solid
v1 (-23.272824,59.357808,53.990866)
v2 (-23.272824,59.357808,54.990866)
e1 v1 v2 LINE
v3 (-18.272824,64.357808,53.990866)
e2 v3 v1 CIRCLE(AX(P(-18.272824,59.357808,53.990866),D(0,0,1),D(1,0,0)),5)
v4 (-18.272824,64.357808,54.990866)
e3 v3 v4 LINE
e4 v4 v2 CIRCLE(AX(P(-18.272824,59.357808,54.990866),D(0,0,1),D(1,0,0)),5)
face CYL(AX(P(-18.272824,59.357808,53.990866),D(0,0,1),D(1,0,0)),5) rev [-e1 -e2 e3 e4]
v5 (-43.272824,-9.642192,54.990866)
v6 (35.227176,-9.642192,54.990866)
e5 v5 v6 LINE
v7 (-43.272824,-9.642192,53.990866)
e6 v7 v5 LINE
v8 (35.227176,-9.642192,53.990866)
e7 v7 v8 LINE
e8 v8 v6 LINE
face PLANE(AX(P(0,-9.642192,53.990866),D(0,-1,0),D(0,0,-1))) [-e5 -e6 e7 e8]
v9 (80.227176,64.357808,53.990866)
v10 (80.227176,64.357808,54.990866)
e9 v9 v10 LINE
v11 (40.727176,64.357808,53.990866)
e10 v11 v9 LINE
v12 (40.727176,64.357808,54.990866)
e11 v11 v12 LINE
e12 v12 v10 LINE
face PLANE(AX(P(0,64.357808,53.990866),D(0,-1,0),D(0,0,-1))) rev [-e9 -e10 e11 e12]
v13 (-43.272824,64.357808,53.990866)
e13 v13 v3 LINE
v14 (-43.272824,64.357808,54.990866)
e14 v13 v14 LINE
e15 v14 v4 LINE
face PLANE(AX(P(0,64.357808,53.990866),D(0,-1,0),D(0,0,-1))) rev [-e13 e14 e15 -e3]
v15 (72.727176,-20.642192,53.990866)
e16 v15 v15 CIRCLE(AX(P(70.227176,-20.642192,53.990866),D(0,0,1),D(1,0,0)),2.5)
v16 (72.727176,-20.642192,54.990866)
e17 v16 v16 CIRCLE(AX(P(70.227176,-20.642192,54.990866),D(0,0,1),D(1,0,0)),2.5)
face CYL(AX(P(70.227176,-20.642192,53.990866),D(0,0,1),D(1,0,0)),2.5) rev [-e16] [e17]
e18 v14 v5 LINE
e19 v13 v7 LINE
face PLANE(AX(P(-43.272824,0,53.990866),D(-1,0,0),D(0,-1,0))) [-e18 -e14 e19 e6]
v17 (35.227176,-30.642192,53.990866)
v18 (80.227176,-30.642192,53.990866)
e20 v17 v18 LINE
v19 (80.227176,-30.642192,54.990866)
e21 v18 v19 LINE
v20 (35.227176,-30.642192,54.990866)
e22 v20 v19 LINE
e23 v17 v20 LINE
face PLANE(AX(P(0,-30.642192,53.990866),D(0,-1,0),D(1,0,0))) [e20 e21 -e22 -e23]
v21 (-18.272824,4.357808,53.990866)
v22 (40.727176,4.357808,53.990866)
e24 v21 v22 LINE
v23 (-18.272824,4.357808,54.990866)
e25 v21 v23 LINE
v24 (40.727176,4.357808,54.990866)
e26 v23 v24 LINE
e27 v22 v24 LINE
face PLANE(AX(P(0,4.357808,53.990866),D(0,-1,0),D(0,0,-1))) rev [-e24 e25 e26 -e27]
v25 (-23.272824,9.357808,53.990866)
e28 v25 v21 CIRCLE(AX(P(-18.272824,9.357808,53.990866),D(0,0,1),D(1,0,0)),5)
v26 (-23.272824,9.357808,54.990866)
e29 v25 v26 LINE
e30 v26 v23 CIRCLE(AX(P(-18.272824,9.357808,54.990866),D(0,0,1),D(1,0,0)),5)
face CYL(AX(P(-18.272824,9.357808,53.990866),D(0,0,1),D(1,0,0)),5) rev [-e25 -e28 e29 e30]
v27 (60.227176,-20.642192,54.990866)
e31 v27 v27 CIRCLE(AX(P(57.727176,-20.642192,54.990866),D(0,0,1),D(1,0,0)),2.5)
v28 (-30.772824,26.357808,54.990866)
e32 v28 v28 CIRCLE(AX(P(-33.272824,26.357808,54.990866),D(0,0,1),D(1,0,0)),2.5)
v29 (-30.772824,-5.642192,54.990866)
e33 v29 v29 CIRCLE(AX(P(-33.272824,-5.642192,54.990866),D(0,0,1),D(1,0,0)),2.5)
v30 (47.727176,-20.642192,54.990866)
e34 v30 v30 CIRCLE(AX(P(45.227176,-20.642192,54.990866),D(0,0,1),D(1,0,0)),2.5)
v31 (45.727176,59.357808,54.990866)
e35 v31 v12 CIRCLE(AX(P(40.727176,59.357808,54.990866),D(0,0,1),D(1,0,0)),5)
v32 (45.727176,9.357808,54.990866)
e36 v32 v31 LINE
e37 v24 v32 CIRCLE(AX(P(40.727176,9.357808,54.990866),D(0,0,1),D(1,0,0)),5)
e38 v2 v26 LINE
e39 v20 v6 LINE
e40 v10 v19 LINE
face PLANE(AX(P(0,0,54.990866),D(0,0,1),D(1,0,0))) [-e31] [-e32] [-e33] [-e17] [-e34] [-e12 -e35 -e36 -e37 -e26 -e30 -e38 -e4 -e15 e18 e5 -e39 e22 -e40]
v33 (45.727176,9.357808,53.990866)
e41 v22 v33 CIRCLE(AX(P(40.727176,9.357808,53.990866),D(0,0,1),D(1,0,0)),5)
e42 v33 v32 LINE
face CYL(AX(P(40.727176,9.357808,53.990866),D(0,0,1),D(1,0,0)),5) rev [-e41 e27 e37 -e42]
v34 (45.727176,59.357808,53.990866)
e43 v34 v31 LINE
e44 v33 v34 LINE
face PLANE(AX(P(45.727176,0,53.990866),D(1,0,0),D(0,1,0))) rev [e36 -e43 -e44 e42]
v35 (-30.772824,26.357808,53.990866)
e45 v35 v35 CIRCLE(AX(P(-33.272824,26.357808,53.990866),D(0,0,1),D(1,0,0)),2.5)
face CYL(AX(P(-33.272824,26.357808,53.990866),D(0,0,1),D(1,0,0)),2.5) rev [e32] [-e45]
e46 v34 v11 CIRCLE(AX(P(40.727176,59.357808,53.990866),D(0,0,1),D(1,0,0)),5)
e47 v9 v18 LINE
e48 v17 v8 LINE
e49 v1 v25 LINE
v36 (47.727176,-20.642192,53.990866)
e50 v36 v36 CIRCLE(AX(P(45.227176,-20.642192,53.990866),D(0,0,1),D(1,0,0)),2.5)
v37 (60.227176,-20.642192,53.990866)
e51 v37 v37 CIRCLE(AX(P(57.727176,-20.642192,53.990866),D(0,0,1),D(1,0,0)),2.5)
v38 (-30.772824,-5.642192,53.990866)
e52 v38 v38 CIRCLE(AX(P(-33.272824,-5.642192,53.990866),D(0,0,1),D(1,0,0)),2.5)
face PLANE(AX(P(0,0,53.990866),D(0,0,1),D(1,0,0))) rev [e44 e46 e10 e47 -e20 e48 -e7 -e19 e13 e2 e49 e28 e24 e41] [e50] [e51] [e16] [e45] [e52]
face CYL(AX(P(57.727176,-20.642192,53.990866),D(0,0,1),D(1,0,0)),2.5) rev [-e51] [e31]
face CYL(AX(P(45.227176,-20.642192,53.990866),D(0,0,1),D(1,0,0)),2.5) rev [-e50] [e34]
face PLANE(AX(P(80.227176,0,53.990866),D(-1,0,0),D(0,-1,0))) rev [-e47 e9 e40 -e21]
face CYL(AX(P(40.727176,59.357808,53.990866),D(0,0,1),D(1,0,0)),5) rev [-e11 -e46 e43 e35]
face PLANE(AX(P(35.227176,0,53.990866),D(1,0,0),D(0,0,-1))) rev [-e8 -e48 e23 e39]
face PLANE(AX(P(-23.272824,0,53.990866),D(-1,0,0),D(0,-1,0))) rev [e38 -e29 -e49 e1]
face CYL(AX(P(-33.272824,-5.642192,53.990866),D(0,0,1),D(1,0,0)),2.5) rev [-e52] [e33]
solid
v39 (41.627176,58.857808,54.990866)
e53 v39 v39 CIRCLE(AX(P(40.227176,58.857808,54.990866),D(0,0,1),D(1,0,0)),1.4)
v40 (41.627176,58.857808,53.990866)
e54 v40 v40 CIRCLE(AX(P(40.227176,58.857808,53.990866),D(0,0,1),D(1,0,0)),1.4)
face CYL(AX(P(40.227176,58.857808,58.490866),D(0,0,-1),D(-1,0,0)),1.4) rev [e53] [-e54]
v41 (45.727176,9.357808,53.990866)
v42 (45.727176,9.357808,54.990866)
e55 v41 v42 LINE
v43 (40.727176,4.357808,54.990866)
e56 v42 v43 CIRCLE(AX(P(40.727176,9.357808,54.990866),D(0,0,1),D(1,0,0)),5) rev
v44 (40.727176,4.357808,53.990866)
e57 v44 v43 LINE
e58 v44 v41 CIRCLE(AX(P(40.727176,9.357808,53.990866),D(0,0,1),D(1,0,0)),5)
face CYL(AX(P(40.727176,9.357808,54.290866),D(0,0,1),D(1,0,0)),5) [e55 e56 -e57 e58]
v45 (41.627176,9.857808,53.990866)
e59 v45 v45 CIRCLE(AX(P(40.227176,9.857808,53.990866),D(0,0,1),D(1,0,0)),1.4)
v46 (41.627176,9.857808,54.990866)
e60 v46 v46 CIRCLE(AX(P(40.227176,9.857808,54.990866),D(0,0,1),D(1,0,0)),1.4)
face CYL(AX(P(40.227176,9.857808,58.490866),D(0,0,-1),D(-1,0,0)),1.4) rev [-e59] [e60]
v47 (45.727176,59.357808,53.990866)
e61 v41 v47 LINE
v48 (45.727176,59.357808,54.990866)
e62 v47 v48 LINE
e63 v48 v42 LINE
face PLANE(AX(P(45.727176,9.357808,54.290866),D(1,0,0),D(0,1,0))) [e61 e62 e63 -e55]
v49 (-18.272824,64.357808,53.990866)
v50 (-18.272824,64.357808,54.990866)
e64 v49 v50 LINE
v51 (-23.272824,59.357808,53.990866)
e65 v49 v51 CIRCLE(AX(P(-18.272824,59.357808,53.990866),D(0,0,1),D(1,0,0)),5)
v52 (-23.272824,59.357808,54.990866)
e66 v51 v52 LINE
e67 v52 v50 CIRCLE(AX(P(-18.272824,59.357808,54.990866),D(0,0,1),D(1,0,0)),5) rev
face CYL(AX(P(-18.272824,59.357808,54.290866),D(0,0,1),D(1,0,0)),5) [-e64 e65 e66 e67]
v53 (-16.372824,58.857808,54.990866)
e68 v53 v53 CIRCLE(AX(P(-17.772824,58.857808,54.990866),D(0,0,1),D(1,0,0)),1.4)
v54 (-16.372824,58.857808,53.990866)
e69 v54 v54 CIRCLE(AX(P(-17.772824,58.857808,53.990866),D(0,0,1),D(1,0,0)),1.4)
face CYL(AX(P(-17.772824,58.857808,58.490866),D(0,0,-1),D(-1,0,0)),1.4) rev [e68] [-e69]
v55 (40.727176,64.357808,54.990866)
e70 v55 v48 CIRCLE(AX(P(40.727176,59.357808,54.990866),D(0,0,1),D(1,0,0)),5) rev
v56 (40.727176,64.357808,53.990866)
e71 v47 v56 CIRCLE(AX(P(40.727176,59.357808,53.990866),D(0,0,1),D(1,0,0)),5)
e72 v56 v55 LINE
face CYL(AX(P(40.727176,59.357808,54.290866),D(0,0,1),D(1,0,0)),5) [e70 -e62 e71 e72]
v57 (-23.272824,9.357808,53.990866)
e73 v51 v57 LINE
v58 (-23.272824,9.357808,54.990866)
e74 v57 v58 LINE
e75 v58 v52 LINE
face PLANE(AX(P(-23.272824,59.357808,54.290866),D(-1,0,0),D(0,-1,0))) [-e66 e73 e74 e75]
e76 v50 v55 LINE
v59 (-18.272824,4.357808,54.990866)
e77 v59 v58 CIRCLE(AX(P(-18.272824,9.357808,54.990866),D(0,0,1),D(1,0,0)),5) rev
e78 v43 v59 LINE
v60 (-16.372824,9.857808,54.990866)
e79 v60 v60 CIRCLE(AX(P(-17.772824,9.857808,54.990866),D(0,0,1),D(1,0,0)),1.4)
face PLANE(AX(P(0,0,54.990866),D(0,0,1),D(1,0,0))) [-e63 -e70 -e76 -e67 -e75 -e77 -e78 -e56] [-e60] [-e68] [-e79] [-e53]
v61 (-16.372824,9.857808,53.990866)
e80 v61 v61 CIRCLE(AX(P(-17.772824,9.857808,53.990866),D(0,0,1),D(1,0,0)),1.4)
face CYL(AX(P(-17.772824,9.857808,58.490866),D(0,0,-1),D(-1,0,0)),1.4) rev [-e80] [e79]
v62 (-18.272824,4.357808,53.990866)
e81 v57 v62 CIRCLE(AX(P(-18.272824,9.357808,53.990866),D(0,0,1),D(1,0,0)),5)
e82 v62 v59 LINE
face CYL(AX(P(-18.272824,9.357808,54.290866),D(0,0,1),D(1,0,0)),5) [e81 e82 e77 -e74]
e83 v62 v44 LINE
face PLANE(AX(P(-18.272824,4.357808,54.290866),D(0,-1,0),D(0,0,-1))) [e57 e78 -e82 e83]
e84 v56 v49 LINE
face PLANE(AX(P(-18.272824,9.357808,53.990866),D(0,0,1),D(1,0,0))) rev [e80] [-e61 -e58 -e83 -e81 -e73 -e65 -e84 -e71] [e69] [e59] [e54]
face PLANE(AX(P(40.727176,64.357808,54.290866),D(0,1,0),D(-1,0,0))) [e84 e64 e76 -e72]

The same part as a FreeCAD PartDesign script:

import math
import FreeCAD as App
import Part
import Sketcher
from FreeCAD import Vector


def add_polygon(sketch, points):
    """Adds a closed chain of lines whose ends are joined by coincident constraints."""
    first, n = sketch.GeometryCount, len(points)
    for a, b in zip(points, points[1:] + points[:1]):
        sketch.addGeometry(Part.LineSegment(App.Vector(*a, 0), App.Vector(*b, 0)), False)
    for i in range(n):
        sketch.addConstraint(Sketcher.Constraint("Coincident", first + i, 2, first + (i + 1) % n, 1))

doc = App.newDocument("Part")
params = doc.addObject("Spreadsheet::Sheet", "Params")
for row, (alias, value) in enumerate([
    ("sketch1_radius", "5 mm"),
    ("sketch1_radius2", "3.5 mm"),
    ("sketch1_width", "59 mm"),
    ("sketch1_height", "50 mm"),
    ("pad1_length", "6.5 mm"),
    ("pad1_length2", "1 mm"),
    ("sketch2_diameter", "6 mm"),
    ("sketch2_diameter2", "2.8 mm"),
    ("pad2_length", "3.2 mm"),
    ("sketch3_diameter", "6 mm"),
    ("sketch3_diameter2", "2.8 mm"),
    ("pad3_length", "3.2 mm"),
    ("sketch4_diameter", "6 mm"),
    ("sketch4_diameter2", "2.8 mm"),
    ("pad4_length", "3.2 mm"),
    ("sketch5_diameter", "6 mm"),
    ("sketch5_diameter2", "2.8 mm"),
    ("pad5_length", "3.2 mm"),
    ("sketch6_radius", "5 mm"),
    ("sketch6_width", "59 mm"),
    ("sketch6_height", "50 mm"),
    ("pad6_length", "1.3 mm"),
    ("sketch7_diameter", "2.8 mm"),
    ("pocket1_length", "1.5 mm"),
    ("pocket2_length", "10 mm"),
    ("pocket2_length2", "3.5 mm"),
    ("sketch9_diameter", "5 mm"),
    ("sketch9_radius", "5 mm"),
    ("sketch9_width", "25 mm"),
    ("sketch9_width2", "45 mm"),
    ("sketch9_width3", "59 mm"),
    ("pad7_length", "1 mm"),
], start=1):
    params.set(f"A{row}", alias)
    params.set(f"B{row}", "=" + value)
    params.setAlias(f"B{row}", alias)

body = doc.addObject("PartDesign::Body", "Body")

# Sketch on XY plane
sketch1 = body.newObject("Sketcher::SketchObject", "Sketch")
sketch1.AttachmentSupport = (doc.getObject("XY_Plane"), [""])
sketch1.MapMode = "FlatFace"
sketch1.AttachmentOffset = App.Placement(Vector(0, 0, 55.290866), App.Rotation())
sketch1.addGeometry([
    Part.LineSegment(Vector(-23.272824, 59.357808, 0), Vector(-23.272824, 9.357808, 0)),  # 0
    Part.ArcOfCircle(Part.Circle(Vector(-18.272824, 9.357808, 0), Vector(0, 0, 1), 5), math.radians(-180), math.radians(-90)),  # 1
    Part.LineSegment(Vector(-18.272824, 4.357808, 0), Vector(40.727176, 4.357808, 0)),  # 2
    Part.ArcOfCircle(Part.Circle(Vector(40.727176, 9.357808, 0), Vector(0, 0, 1), 5), math.radians(-90), math.radians(0)),  # 3
    Part.LineSegment(Vector(45.727176, 9.357808, 0), Vector(45.727176, 59.357808, 0)),  # 4
    Part.ArcOfCircle(Part.Circle(Vector(40.727176, 59.357808, 0), Vector(0, 0, 1), 5), math.radians(0), math.radians(90)),  # 5
    Part.LineSegment(Vector(40.727176, 64.357808, 0), Vector(-18.272824, 64.357808, 0)),  # 6
    Part.ArcOfCircle(Part.Circle(Vector(-18.272824, 59.357808, 0), Vector(0, 0, 1), 5), math.radians(90), math.radians(180)),  # 7
    Part.LineSegment(Vector(-18.272824, 62.857808, 0), Vector(40.727176, 62.857808, 0)),  # 8
    Part.ArcOfCircle(Part.Circle(Vector(40.727176, 59.357808, 0), Vector(0, 0, 1), 3.5), math.radians(0), math.radians(90)),  # 9
    Part.LineSegment(Vector(44.227176, 59.357808, 0), Vector(44.227176, 9.357808, 0)),  # 10
    Part.ArcOfCircle(Part.Circle(Vector(40.727176, 9.357808, 0), Vector(0, 0, 1), 3.5), math.radians(-90), math.radians(0)),  # 11
    Part.LineSegment(Vector(40.727176, 5.857808, 0), Vector(-18.272824, 5.857808, 0)),  # 12
    Part.ArcOfCircle(Part.Circle(Vector(-18.272824, 9.357808, 0), Vector(0, 0, 1), 3.5), math.radians(-180), math.radians(-90)),  # 13
    Part.LineSegment(Vector(-21.772824, 9.357808, 0), Vector(-21.772824, 59.357808, 0)),  # 14
    Part.ArcOfCircle(Part.Circle(Vector(-18.272824, 59.357808, 0), Vector(0, 0, 1), 3.5), math.radians(90), math.radians(180)),  # 15
], False)
sketch1.addConstraint([
    Sketcher.Constraint("Tangent", 0, 2, 1, 1),
    Sketcher.Constraint("Tangent", 1, 2, 2, 1),
    Sketcher.Constraint("Tangent", 2, 2, 3, 1),
    Sketcher.Constraint("Tangent", 3, 2, 4, 1),
    Sketcher.Constraint("Tangent", 4, 2, 5, 1),
    Sketcher.Constraint("Tangent", 5, 2, 6, 1),
    Sketcher.Constraint("Tangent", 6, 2, 7, 1),
    Sketcher.Constraint("Tangent", 7, 2, 0, 1),
    Sketcher.Constraint("Tangent", 8, 2, 9, 2),
    Sketcher.Constraint("Tangent", 9, 1, 10, 1),
    Sketcher.Constraint("Tangent", 10, 2, 11, 2),
    Sketcher.Constraint("Tangent", 11, 1, 12, 1),
    Sketcher.Constraint("Tangent", 12, 2, 13, 2),
    Sketcher.Constraint("Tangent", 13, 1, 14, 1),
    Sketcher.Constraint("Tangent", 14, 2, 15, 2),
    Sketcher.Constraint("Tangent", 15, 1, 8, 1),
    Sketcher.Constraint("Vertical", 0),
    Sketcher.Constraint("Horizontal", 2),
    Sketcher.Constraint("Vertical", 4),
    Sketcher.Constraint("Horizontal", 6),
    Sketcher.Constraint("Horizontal", 8),
    Sketcher.Constraint("Vertical", 10),
    Sketcher.Constraint("Horizontal", 12),
    Sketcher.Constraint("Vertical", 14),
    Sketcher.Constraint("Coincident", 9, 3, 5, 3),
    Sketcher.Constraint("Coincident", 11, 3, 3, 3),
    Sketcher.Constraint("Coincident", 13, 3, 1, 3),
    Sketcher.Constraint("Equal", 1, 3),
    Sketcher.Constraint("Equal", 3, 5),
    Sketcher.Constraint("Equal", 5, 7),
    Sketcher.Constraint("Equal", 13, 15),
    Sketcher.Constraint("Radius", 1, 5.0),
    Sketcher.Constraint("Radius", 9, 3.5),
    Sketcher.Constraint("DistanceX", 2, 1, 2, 2, 59.0),
    Sketcher.Constraint("DistanceY", 0, 2, 0, 1, 50.0),
    Sketcher.Constraint("DistanceY", -1, 1, 1, 3, 9.357808),
    Sketcher.Constraint("DistanceX", 1, 3, -1, 1, 18.272824),
])
sketch1.setExpression("Constraints[31]", "Params.sketch1_radius")
sketch1.setExpression("Constraints[32]", "Params.sketch1_radius2")
sketch1.setExpression("Constraints[33]", "Params.sketch1_width")
sketch1.setExpression("Constraints[34]", "Params.sketch1_height")
pad1 = body.newObject("PartDesign::Pad", "Pad")
pad1.Profile = sketch1
pad1.Type = "TwoLengths"
pad1.setExpression("Length", "Params.pad1_length")
pad1.setExpression("Length2", "Params.pad1_length2")
body2 = doc.addObject("PartDesign::Body", "Body001")

# Sketch on XY plane
sketch2 = body2.newObject("Sketcher::SketchObject", "Sketch001")
sketch2.AttachmentSupport = (doc.getObject("XY_Plane001"), [""])
sketch2.MapMode = "FlatFace"
sketch2.AttachmentOffset = App.Placement(Vector(0, 0, 55.290866), App.Rotation())
sketch2.addGeometry([
    Part.Circle(Vector(-17.772824, 58.857808, 0), Vector(0, 0, 1), 3),
    Part.Circle(Vector(-17.772824, 58.857808, 0), Vector(0, 0, 1), 1.4),
], False)
sketch2.addConstraint([
    Sketcher.Constraint("Coincident", 1, 3, 0, 3),
    Sketcher.Constraint("Diameter", 0, 6.0),
    Sketcher.Constraint("Diameter", 1, 2.8),
    Sketcher.Constraint("DistanceY", -1, 1, 0, 3, 58.857808),
    Sketcher.Constraint("DistanceX", 0, 3, -1, 1, 17.772824),
])
sketch2.setExpression("Constraints[1]", "Params.sketch2_diameter")
sketch2.setExpression("Constraints[2]", "Params.sketch2_diameter2")
pad2 = body2.newObject("PartDesign::Pad", "Pad001")
pad2.Profile = sketch2
pad2.setExpression("Length", "Params.pad2_length")
body3 = doc.addObject("PartDesign::Body", "Body002")

# Sketch on XY plane
sketch3 = body3.newObject("Sketcher::SketchObject", "Sketch002")
sketch3.AttachmentSupport = (doc.getObject("XY_Plane002"), [""])
sketch3.MapMode = "FlatFace"
sketch3.AttachmentOffset = App.Placement(Vector(0, 0, 55.290866), App.Rotation())
sketch3.addGeometry([
    Part.Circle(Vector(40.227176, 58.857808, 0), Vector(0, 0, 1), 3),
    Part.Circle(Vector(40.227176, 58.857808, 0), Vector(0, 0, 1), 1.4),
], False)
sketch3.addConstraint([
    Sketcher.Constraint("Coincident", 1, 3, 0, 3),
    Sketcher.Constraint("Diameter", 0, 6.0),
    Sketcher.Constraint("Diameter", 1, 2.8),
    Sketcher.Constraint("DistanceY", -1, 1, 0, 3, 58.857808),
    Sketcher.Constraint("DistanceX", -1, 1, 0, 3, 40.227176),
])
sketch3.setExpression("Constraints[1]", "Params.sketch3_diameter")
sketch3.setExpression("Constraints[2]", "Params.sketch3_diameter2")
pad3 = body3.newObject("PartDesign::Pad", "Pad002")
pad3.Profile = sketch3
pad3.setExpression("Length", "Params.pad3_length")
body4 = doc.addObject("PartDesign::Body", "Body003")

# Sketch on XY plane
sketch4 = body4.newObject("Sketcher::SketchObject", "Sketch003")
sketch4.AttachmentSupport = (doc.getObject("XY_Plane003"), [""])
sketch4.MapMode = "FlatFace"
sketch4.AttachmentOffset = App.Placement(Vector(0, 0, 55.290866), App.Rotation())
sketch4.addGeometry([
    Part.Circle(Vector(-17.772824, 9.857808, 0), Vector(0, 0, 1), 3),
    Part.Circle(Vector(-17.772824, 9.857808, 0), Vector(0, 0, 1), 1.4),
], False)
sketch4.addConstraint([
    Sketcher.Constraint("Coincident", 1, 3, 0, 3),
    Sketcher.Constraint("Diameter", 0, 6.0),
    Sketcher.Constraint("Diameter", 1, 2.8),
    Sketcher.Constraint("DistanceY", -1, 1, 0, 3, 9.857808),
    Sketcher.Constraint("DistanceX", 0, 3, -1, 1, 17.772824),
])
sketch4.setExpression("Constraints[1]", "Params.sketch4_diameter")
sketch4.setExpression("Constraints[2]", "Params.sketch4_diameter2")
pad4 = body4.newObject("PartDesign::Pad", "Pad003")
pad4.Profile = sketch4
pad4.setExpression("Length", "Params.pad4_length")
body5 = doc.addObject("PartDesign::Body", "Body004")

# Sketch on XY plane
sketch5 = body5.newObject("Sketcher::SketchObject", "Sketch004")
sketch5.AttachmentSupport = (doc.getObject("XY_Plane004"), [""])
sketch5.MapMode = "FlatFace"
sketch5.AttachmentOffset = App.Placement(Vector(0, 0, 55.290866), App.Rotation())
sketch5.addGeometry([
    Part.Circle(Vector(40.227176, 9.857808, 0), Vector(0, 0, 1), 3),
    Part.Circle(Vector(40.227176, 9.857808, 0), Vector(0, 0, 1), 1.4),
], False)
sketch5.addConstraint([
    Sketcher.Constraint("Coincident", 1, 3, 0, 3),
    Sketcher.Constraint("Diameter", 0, 6.0),
    Sketcher.Constraint("Diameter", 1, 2.8),
    Sketcher.Constraint("DistanceY", -1, 1, 0, 3, 9.857808),
    Sketcher.Constraint("DistanceX", -1, 1, 0, 3, 40.227176),
])
sketch5.setExpression("Constraints[1]", "Params.sketch5_diameter")
sketch5.setExpression("Constraints[2]", "Params.sketch5_diameter2")
pad5 = body5.newObject("PartDesign::Pad", "Pad004")
pad5.Profile = sketch5
pad5.setExpression("Length", "Params.pad5_length")
body.AllowCompound = True
doc.recompute()

boolean = body.newObject("PartDesign::Boolean", "Boolean")
boolean.Type = "Fuse"
boolean.addObjects([body2])
doc.recompute()

boolean2 = body.newObject("PartDesign::Boolean", "Boolean001")
boolean2.Type = "Fuse"
boolean2.addObjects([body3])
doc.recompute()

boolean3 = body.newObject("PartDesign::Boolean", "Boolean002")
boolean3.Type = "Fuse"
boolean3.addObjects([body4])
doc.recompute()

boolean4 = body.newObject("PartDesign::Boolean", "Boolean003")
boolean4.Type = "Fuse"
boolean4.addObjects([body5])

# Sketch on XY plane
sketch6 = body.newObject("Sketcher::SketchObject", "Sketch005")
sketch6.AttachmentSupport = (doc.getObject("XY_Plane"), [""])
sketch6.MapMode = "FlatFace"
sketch6.AttachmentOffset = App.Placement(Vector(0, 0, 53.990866), App.Rotation())
sketch6.addGeometry([
    Part.ArcOfCircle(Part.Circle(Vector(-18.272824, 59.357808, 0), Vector(0, 0, 1), 5), math.radians(90), math.radians(180)),  # 0
    Part.LineSegment(Vector(-23.272824, 59.357808, 0), Vector(-23.272824, 9.357808, 0)),  # 1
    Part.ArcOfCircle(Part.Circle(Vector(-18.272824, 9.357808, 0), Vector(0, 0, 1), 5), math.radians(-180), math.radians(-90)),  # 2
    Part.LineSegment(Vector(-18.272824, 4.357808, 0), Vector(40.727176, 4.357808, 0)),  # 3
    Part.ArcOfCircle(Part.Circle(Vector(40.727176, 9.357808, 0), Vector(0, 0, 1), 5), math.radians(-90), math.radians(0)),  # 4
    Part.LineSegment(Vector(45.727176, 9.357808, 0), Vector(45.727176, 59.357808, 0)),  # 5
    Part.ArcOfCircle(Part.Circle(Vector(40.727176, 59.357808, 0), Vector(0, 0, 1), 5), math.radians(0), math.radians(90)),  # 6
    Part.LineSegment(Vector(40.727176, 64.357808, 0), Vector(-18.272824, 64.357808, 0)),  # 7
], False)
sketch6.addConstraint([
    Sketcher.Constraint("Tangent", 0, 2, 1, 1),
    Sketcher.Constraint("Tangent", 1, 2, 2, 1),
    Sketcher.Constraint("Tangent", 2, 2, 3, 1),
    Sketcher.Constraint("Tangent", 3, 2, 4, 1),
    Sketcher.Constraint("Tangent", 4, 2, 5, 1),
    Sketcher.Constraint("Tangent", 5, 2, 6, 1),
    Sketcher.Constraint("Tangent", 6, 2, 7, 1),
    Sketcher.Constraint("Tangent", 7, 2, 0, 1),
    Sketcher.Constraint("Vertical", 1),
    Sketcher.Constraint("Horizontal", 3),
    Sketcher.Constraint("Vertical", 5),
    Sketcher.Constraint("Horizontal", 7),
    Sketcher.Constraint("Equal", 0, 2),
    Sketcher.Constraint("Equal", 2, 4),
    Sketcher.Constraint("Equal", 4, 6),
    Sketcher.Constraint("Radius", 0, 5.0),
    Sketcher.Constraint("DistanceX", 3, 1, 3, 2, 59.0),
    Sketcher.Constraint("DistanceY", 1, 2, 1, 1, 50.0),
    Sketcher.Constraint("DistanceY", -1, 1, 0, 3, 59.357808),
    Sketcher.Constraint("DistanceX", 0, 3, -1, 1, 18.272824),
])
sketch6.setExpression("Constraints[15]", "Params.sketch6_radius")
sketch6.setExpression("Constraints[16]", "Params.sketch6_width")
sketch6.setExpression("Constraints[17]", "Params.sketch6_height")
pad6 = body.newObject("PartDesign::Pad", "Pad005")
pad6.Profile = sketch6
pad6.setExpression("Length", "Params.pad6_length")

# Sketch on XY plane
sketch7 = body.newObject("Sketcher::SketchObject", "Sketch006")
sketch7.AttachmentSupport = (doc.getObject("XY_Plane"), [""])
sketch7.MapMode = "FlatFace"
sketch7.AttachmentOffset = App.Placement(Vector(0, 0, 53.790866), App.Rotation())
sketch7.addGeometry([
    Part.Circle(Vector(40.227176, 9.857808, 0), Vector(0, 0, 1), 1.4),
    Part.Circle(Vector(-17.772824, 9.857808, 0), Vector(0, 0, 1), 1.4),
    Part.Circle(Vector(-17.772824, 58.857808, 0), Vector(0, 0, 1), 1.4),
    Part.Circle(Vector(40.227176, 58.857808, 0), Vector(0, 0, 1), 1.4),
], False)
sketch7.addConstraint([
    Sketcher.Constraint("Equal", 0, 1),
    Sketcher.Constraint("Equal", 1, 2),
    Sketcher.Constraint("Equal", 2, 3),
    Sketcher.Constraint("Horizontal", 0, 3, 1, 3),
    Sketcher.Constraint("Horizontal", 2, 3, 3, 3),
    Sketcher.Constraint("Vertical", 1, 3, 2, 3),
    Sketcher.Constraint("Vertical", 0, 3, 3, 3),
    Sketcher.Constraint("Diameter", 0, 2.8),
    Sketcher.Constraint("DistanceX", 1, 3, 0, 3, 58.0),
    Sketcher.Constraint("DistanceY", 1, 3, 2, 3, 49.0),
    Sketcher.Constraint("DistanceY", -1, 1, 0, 3, 9.857808),
    Sketcher.Constraint("DistanceX", -1, 1, 0, 3, 40.227176),
])
sketch7.setExpression("Constraints[7]", "Params.sketch7_diameter")
pocket1 = body.newObject("PartDesign::Pocket", "Pocket")
pocket1.Profile = sketch7
pocket1.setExpression("Length", "Params.pocket1_length")
pocket1.Reversed = True

# Sketch on XY plane
sketch8 = body.newObject("Sketcher::SketchObject", "Sketch007")
sketch8.AttachmentSupport = (doc.getObject("XY_Plane"), [""])
sketch8.MapMode = "FlatFace"
sketch8.AttachmentOffset = App.Placement(Vector(0, 0, 58.490866), App.Rotation())
add_polygon(sketch8, [(-50.50342, 101.571465), (-50.50342, -11.520914), (67.979806, -11.520914), (67.979806, 101.571465)])  # lines 0-3
sketch8.addConstraint([
    Sketcher.Constraint("Vertical", 0),
    Sketcher.Constraint("Horizontal", 1),
    Sketcher.Constraint("Vertical", 2),
    Sketcher.Constraint("Horizontal", 3),
    Sketcher.Constraint("DistanceY", 0, 2, 0, 1, 113.092379),
    Sketcher.Constraint("DistanceX", 1, 1, 1, 2, 118.483226),
    Sketcher.Constraint("DistanceX", 0, 2, -1, 1, 50.50342),
    Sketcher.Constraint("DistanceY", 0, 2, -1, 1, 11.520914),
])
pocket2 = body.newObject("PartDesign::Pocket", "Pocket001")
pocket2.Profile = sketch8
pocket2.Type = "TwoLengths"
pocket2.setExpression("Length", "Params.pocket2_length")
pocket2.setExpression("Length2", "Params.pocket2_length2")
pocket2.Reversed = True
body6 = doc.addObject("PartDesign::Body", "Body005")

# Sketch on XY plane
sketch9 = body6.newObject("Sketcher::SketchObject", "Sketch008")
sketch9.AttachmentSupport = (doc.getObject("XY_Plane005"), [""])
sketch9.MapMode = "FlatFace"
sketch9.AttachmentOffset = App.Placement(Vector(0, 0, 54.990866), App.Rotation())
sketch9.addGeometry([
    Part.LineSegment(Vector(-18.272824, 64.357808, 0), Vector(-43.272824, 64.357808, 0)),  # 0
    Part.LineSegment(Vector(-43.272824, 64.357808, 0), Vector(-43.272824, -9.642192, 0)),  # 1
    Part.LineSegment(Vector(-43.272824, -9.642192, 0), Vector(35.227176, -9.642192, 0)),  # 2
    Part.LineSegment(Vector(35.227176, -9.642192, 0), Vector(35.227176, -30.642192, 0)),  # 3
    Part.LineSegment(Vector(35.227176, -30.642192, 0), Vector(80.227176, -30.642192, 0)),  # 4
    Part.LineSegment(Vector(80.227176, -30.642192, 0), Vector(80.227176, 64.357808, 0)),  # 5
    Part.LineSegment(Vector(80.227176, 64.357808, 0), Vector(40.727176, 64.357808, 0)),  # 6
    Part.ArcOfCircle(Part.Circle(Vector(40.727176, 59.357808, 0), Vector(0, 0, 1), 5), math.radians(0), math.radians(90)),  # 7
    Part.LineSegment(Vector(45.727176, 59.357808, 0), Vector(45.727176, 9.357808, 0)),  # 8
    Part.ArcOfCircle(Part.Circle(Vector(40.727176, 9.357808, 0), Vector(0, 0, 1), 5), math.radians(-90), math.radians(0)),  # 9
    Part.LineSegment(Vector(40.727176, 4.357808, 0), Vector(-18.272824, 4.357808, 0)),  # 10
    Part.ArcOfCircle(Part.Circle(Vector(-18.272824, 9.357808, 0), Vector(0, 0, 1), 5), math.radians(-180), math.radians(-90)),  # 11
    Part.LineSegment(Vector(-23.272824, 9.357808, 0), Vector(-23.272824, 59.357808, 0)),  # 12
    Part.ArcOfCircle(Part.Circle(Vector(-18.272824, 59.357808, 0), Vector(0, 0, 1), 5), math.radians(90), math.radians(180)),  # 13
    Part.Circle(Vector(-33.272824, -5.642192, 0), Vector(0, 0, 1), 2.5),  # 14
    Part.Circle(Vector(45.227176, -20.642192, 0), Vector(0, 0, 1), 2.5),  # 15
    Part.Circle(Vector(57.727176, -20.642192, 0), Vector(0, 0, 1), 2.5),  # 16
    Part.Circle(Vector(70.227176, -20.642192, 0), Vector(0, 0, 1), 2.5),  # 17
    Part.Circle(Vector(-33.272824, 26.357808, 0), Vector(0, 0, 1), 2.5),  # 18
], False)
sketch9.addConstraint([
    Sketcher.Constraint("Coincident", 0, 2, 1, 1),
    Sketcher.Constraint("Coincident", 1, 2, 2, 1),
    Sketcher.Constraint("Coincident", 2, 2, 3, 1),
    Sketcher.Constraint("Coincident", 3, 2, 4, 1),
    Sketcher.Constraint("Coincident", 4, 2, 5, 1),
    Sketcher.Constraint("Coincident", 5, 2, 6, 1),
    Sketcher.Constraint("Tangent", 6, 2, 7, 2),
    Sketcher.Constraint("Tangent", 7, 1, 8, 1),
    Sketcher.Constraint("Tangent", 8, 2, 9, 2),
    Sketcher.Constraint("Tangent", 9, 1, 10, 1),
    Sketcher.Constraint("Tangent", 10, 2, 11, 2),
    Sketcher.Constraint("Tangent", 11, 1, 12, 1),
    Sketcher.Constraint("Tangent", 12, 2, 13, 2),
    Sketcher.Constraint("Tangent", 13, 1, 0, 1),
    Sketcher.Constraint("Horizontal", 0),
    Sketcher.Constraint("Vertical", 1),
    Sketcher.Constraint("Horizontal", 2),
    Sketcher.Constraint("Vertical", 3),
    Sketcher.Constraint("Horizontal", 4),
    Sketcher.Constraint("Vertical", 5),
    Sketcher.Constraint("Horizontal", 6),
    Sketcher.Constraint("Vertical", 8),
    Sketcher.Constraint("Horizontal", 10),
    Sketcher.Constraint("Vertical", 12),
    Sketcher.Constraint("Equal", 7, 9),
    Sketcher.Constraint("Equal", 9, 11),
    Sketcher.Constraint("Equal", 11, 13),
    Sketcher.Constraint("Equal", 14, 15),
    Sketcher.Constraint("Equal", 15, 16),
    Sketcher.Constraint("Equal", 16, 17),
    Sketcher.Constraint("Equal", 17, 18),
    Sketcher.Constraint("Horizontal", 7, 3, 13, 3),
    Sketcher.Constraint("Horizontal", 15, 3, 16, 3),
    Sketcher.Constraint("Horizontal", 16, 3, 17, 3),
    Sketcher.Constraint("Vertical", 14, 3, 18, 3),
    Sketcher.Constraint("Diameter", 14, 5.0),
    Sketcher.Constraint("Radius", 7, 5.0),
    Sketcher.Constraint("DistanceX", 0, 2, 0, 1, 25.0),
    Sketcher.Constraint("DistanceX", 4, 1, 4, 2, 45.0),
    Sketcher.Constraint("DistanceX", 10, 2, 10, 1, 59.0),
    Sketcher.Constraint("DistanceY", 1, 2, 1, 1, 74.0),
    Sketcher.Constraint("DistanceY", 3, 2, 3, 1, 21.0),
    Sketcher.Constraint("DistanceY", 8, 2, 8, 1, 50.0),
    Sketcher.Constraint("DistanceX", 2, 1, 2, 2, 78.5),
    Sketcher.Constraint("DistanceX", 14, 3, 11, 3, 15.0),
    Sketcher.Constraint("DistanceY", 14, 3, 11, 3, 15.0),
    Sketcher.Constraint("DistanceY", 15, 3, 9, 3, 30.0),
    Sketcher.Constraint("DistanceX", 9, 3, 16, 3, 17.0),
    Sketcher.Constraint("DistanceX", 15, 3, 17, 3, 25.0),
    Sketcher.Constraint("DistanceY", 11, 3, 18, 3, 17.0),
    Sketcher.Constraint("DistanceX", 2, 2, 15, 3, 10.0),
    Sketcher.Constraint("DistanceY", -1, 1, 7, 3, 59.357808),
    Sketcher.Constraint("DistanceX", -1, 1, 7, 3, 40.727176),
])
sketch9.setExpression("Constraints[35]", "Params.sketch9_diameter")
sketch9.setExpression("Constraints[36]", "Params.sketch9_radius")
sketch9.setExpression("Constraints[37]", "Params.sketch9_width")
sketch9.setExpression("Constraints[38]", "Params.sketch9_width2")
sketch9.setExpression("Constraints[39]", "Params.sketch9_width3")
pad7 = body6.newObject("PartDesign::Pad", "Pad006")
pad7.Profile = sketch9
pad7.setExpression("Length", "Params.pad7_length")
pad7.Reversed = True

doc.recompute()
